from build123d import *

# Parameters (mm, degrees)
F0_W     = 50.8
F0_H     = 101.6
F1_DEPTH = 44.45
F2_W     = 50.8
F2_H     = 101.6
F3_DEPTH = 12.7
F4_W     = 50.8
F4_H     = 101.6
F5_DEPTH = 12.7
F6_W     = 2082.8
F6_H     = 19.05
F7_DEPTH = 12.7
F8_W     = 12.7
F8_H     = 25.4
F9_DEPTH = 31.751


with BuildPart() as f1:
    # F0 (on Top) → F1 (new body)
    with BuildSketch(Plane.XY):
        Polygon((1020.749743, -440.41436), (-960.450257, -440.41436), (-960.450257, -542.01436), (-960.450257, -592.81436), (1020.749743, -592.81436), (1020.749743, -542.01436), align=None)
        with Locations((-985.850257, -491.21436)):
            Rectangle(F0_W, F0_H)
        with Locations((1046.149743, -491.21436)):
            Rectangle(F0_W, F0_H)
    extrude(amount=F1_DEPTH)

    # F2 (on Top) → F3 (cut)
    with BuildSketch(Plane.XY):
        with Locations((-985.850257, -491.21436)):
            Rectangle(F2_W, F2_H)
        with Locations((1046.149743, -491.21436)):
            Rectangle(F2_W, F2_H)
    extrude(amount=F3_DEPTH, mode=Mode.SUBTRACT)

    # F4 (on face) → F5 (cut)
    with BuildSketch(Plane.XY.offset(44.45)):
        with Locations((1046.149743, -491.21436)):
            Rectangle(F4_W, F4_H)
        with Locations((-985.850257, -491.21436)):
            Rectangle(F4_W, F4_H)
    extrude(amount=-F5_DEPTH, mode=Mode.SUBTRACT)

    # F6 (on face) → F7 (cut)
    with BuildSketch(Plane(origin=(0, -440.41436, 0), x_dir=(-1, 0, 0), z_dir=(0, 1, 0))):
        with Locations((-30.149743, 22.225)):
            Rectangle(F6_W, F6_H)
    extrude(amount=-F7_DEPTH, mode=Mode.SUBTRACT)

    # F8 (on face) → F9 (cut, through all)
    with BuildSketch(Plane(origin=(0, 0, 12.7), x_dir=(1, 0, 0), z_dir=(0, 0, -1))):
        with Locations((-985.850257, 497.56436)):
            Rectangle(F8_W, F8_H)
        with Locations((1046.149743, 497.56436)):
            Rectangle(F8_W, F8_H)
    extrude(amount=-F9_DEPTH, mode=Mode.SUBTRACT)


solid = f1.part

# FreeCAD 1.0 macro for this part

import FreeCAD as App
import Part
import Sketcher
Q = App.Units.Quantity

doc = App.newDocument("Part")
params = doc.addObject("Spreadsheet::Sheet", "Params")
for row, (alias, value) in enumerate([
    ("sketch1_width", "2 in"),
    ("sketch1_width2", "78 in"),
    ("sketch1_height", "4 in"),
    ("pad1_length", "1.75 in"),
    ("sketch2_width", "2 in"),
    ("sketch2_height", "4 in"),
    ("pocket1_length", "0.5 in"),
    ("sketch3_width", "2 in"),
    ("sketch3_height", "4 in"),
    ("pocket2_length", "0.5 in"),
    ("sketch4_width", "82 in"),
    ("sketch4_height", "0.75 in"),
    ("pocket3_length", "0.5 in"),
    ("sketch5_height", "1 in"),
    ("sketch5_width", "0.5 in"),
], start=1):
    params.set(f"A{row}", alias)
    params.set(f"B{row}", "=" + value)
    params.setAlias(f"B{row}", alias)

body = doc.addObject("PartDesign::Body", "Body")

sketch1 = doc.addObject("Sketcher::SketchObject", "Sketch")
body.addObject(sketch1)
sketch1.AttachmentSupport = (doc.XY_Plane, [""])
sketch1.MapMode = "FlatFace"
sketch1.addGeometry(Part.LineSegment(App.Vector(-1011, -440, 0), App.Vector(-1011, -542, 0)), False)
sketch1.addGeometry(Part.LineSegment(App.Vector(-1011, -542, 0), App.Vector(-960, -542, 0)), False)
sketch1.addGeometry(Part.LineSegment(App.Vector(-960, -542, 0), App.Vector(-960, -593, 0)), False)
sketch1.addGeometry(Part.LineSegment(App.Vector(-960, -593, 0), App.Vector(1021, -593, 0)), False)
sketch1.addGeometry(Part.LineSegment(App.Vector(1021, -593, 0), App.Vector(1021, -542, 0)), False)
sketch1.addGeometry(Part.LineSegment(App.Vector(1021, -542, 0), App.Vector(1072, -542, 0)), False)
sketch1.addGeometry(Part.LineSegment(App.Vector(1072, -542, 0), App.Vector(1072, -440, 0)), False)
sketch1.addGeometry(Part.LineSegment(App.Vector(1072, -440, 0), App.Vector(-1011, -440, 0)), False)
sketch1.addConstraint(Sketcher.Constraint("Coincident", 0, 2, 1, 1))
sketch1.addConstraint(Sketcher.Constraint("Coincident", 1, 2, 2, 1))
sketch1.addConstraint(Sketcher.Constraint("Coincident", 2, 2, 3, 1))
sketch1.addConstraint(Sketcher.Constraint("Coincident", 3, 2, 4, 1))
sketch1.addConstraint(Sketcher.Constraint("Coincident", 4, 2, 5, 1))
sketch1.addConstraint(Sketcher.Constraint("Coincident", 5, 2, 6, 1))
sketch1.addConstraint(Sketcher.Constraint("Coincident", 6, 2, 7, 1))
sketch1.addConstraint(Sketcher.Constraint("Coincident", 7, 2, 0, 1))
sketch1.addConstraint(Sketcher.Constraint("Vertical", 0))
sketch1.addConstraint(Sketcher.Constraint("Horizontal", 1))
sketch1.addConstraint(Sketcher.Constraint("Vertical", 2))
sketch1.addConstraint(Sketcher.Constraint("Horizontal", 3))
sketch1.addConstraint(Sketcher.Constraint("Vertical", 4))
sketch1.addConstraint(Sketcher.Constraint("Horizontal", 5))
sketch1.addConstraint(Sketcher.Constraint("Vertical", 6))
sketch1.addConstraint(Sketcher.Constraint("Horizontal", 7))
sketch1.addConstraint(Sketcher.Constraint("Horizontal", 1, 2, 4, 2))
sketch1.addConstraint(Sketcher.Constraint("Equal", 1, 5))
sketch1.addConstraint(Sketcher.Constraint("Equal", 5, 2))
sketch1.addConstraint(Sketcher.Constraint("DistanceX", 1, 1, 1, 2, Q("2 in")))
sketch1.addConstraint(Sketcher.Constraint("DistanceX", 3, 1, 3, 2, Q("78 in")))
sketch1.addConstraint(Sketcher.Constraint("DistanceY", 0, 2, 0, 1, Q("4 in")))
sketch1.addConstraint(Sketcher.Constraint("DistanceY", 0, 2, -1, 1, Q("542.01436 mm")))
sketch1.addConstraint(Sketcher.Constraint("DistanceX", 0, 2, -1, 1, Q("1011.250257 mm")))
sketch1.setExpression("Constraints[19]", "Params.sketch1_width")
sketch1.setExpression("Constraints[20]", "Params.sketch1_width2")
sketch1.setExpression("Constraints[21]", "Params.sketch1_height")
pad1 = doc.addObject("PartDesign::Pad", "Pad")
body.addObject(pad1)
pad1.Profile = sketch1
pad1.setExpression("Length", "Params.pad1_length")

sketch2 = doc.addObject("Sketcher::SketchObject", "Sketch001")
body.addObject(sketch2)
sketch2.AttachmentSupport = (doc.XY_Plane, [""])
sketch2.MapMode = "FlatFace"
sketch2.addGeometry(Part.LineSegment(App.Vector(-1011, -440, 0), App.Vector(-1011, -542, 0)), False)
sketch2.addGeometry(Part.LineSegment(App.Vector(-1011, -542, 0), App.Vector(-960, -542, 0)), False)
sketch2.addGeometry(Part.LineSegment(App.Vector(-960, -542, 0), App.Vector(-960, -440, 0)), False)
sketch2.addGeometry(Part.LineSegment(App.Vector(-960, -440, 0), App.Vector(-1011, -440, 0)), False)
sketch2.addGeometry(Part.LineSegment(App.Vector(1021, -440, 0), App.Vector(1021, -542, 0)), False)
sketch2.addGeometry(Part.LineSegment(App.Vector(1021, -542, 0), App.Vector(1072, -542, 0)), False)
sketch2.addGeometry(Part.LineSegment(App.Vector(1072, -542, 0), App.Vector(1072, -440, 0)), False)
sketch2.addGeometry(Part.LineSegment(App.Vector(1072, -440, 0), App.Vector(1021, -440, 0)), False)
sketch2.addConstraint(Sketcher.Constraint("Coincident", 0, 2, 1, 1))
sketch2.addConstraint(Sketcher.Constraint("Coincident", 1, 2, 2, 1))
sketch2.addConstraint(Sketcher.Constraint("Coincident", 2, 2, 3, 1))
sketch2.addConstraint(Sketcher.Constraint("Coincident", 3, 2, 0, 1))
sketch2.addConstraint(Sketcher.Constraint("Coincident", 4, 2, 5, 1))
sketch2.addConstraint(Sketcher.Constraint("Coincident", 5, 2, 6, 1))
sketch2.addConstraint(Sketcher.Constraint("Coincident", 6, 2, 7, 1))
sketch2.addConstraint(Sketcher.Constraint("Coincident", 7, 2, 4, 1))
sketch2.addConstraint(Sketcher.Constraint("Vertical", 0))
sketch2.addConstraint(Sketcher.Constraint("Horizontal", 1))
sketch2.addConstraint(Sketcher.Constraint("Vertical", 2))
sketch2.addConstraint(Sketcher.Constraint("Horizontal", 3))
sketch2.addConstraint(Sketcher.Constraint("Vertical", 4))
sketch2.addConstraint(Sketcher.Constraint("Horizontal", 5))
sketch2.addConstraint(Sketcher.Constraint("Vertical", 6))
sketch2.addConstraint(Sketcher.Constraint("Horizontal", 7))
sketch2.addConstraint(Sketcher.Constraint("Horizontal", 1, 2, 4, 2))
sketch2.addConstraint(Sketcher.Constraint("Horizontal", 3, 2, 6, 2))
sketch2.addConstraint(Sketcher.Constraint("Equal", 3, 5))
sketch2.addConstraint(Sketcher.Constraint("DistanceX", 1, 1, 1, 2, Q("2 in")))
sketch2.addConstraint(Sketcher.Constraint("DistanceY", 0, 2, 0, 1, Q("4 in")))
sketch2.addConstraint(Sketcher.Constraint("DistanceX", 1, 2, 4, 2, Q("78 in")))
sketch2.addConstraint(Sketcher.Constraint("DistanceY", 0, 2, -1, 1, Q("542.01436 mm")))
sketch2.addConstraint(Sketcher.Constraint("DistanceX", 0, 2, -1, 1, Q("1011.250257 mm")))
sketch2.setExpression("Constraints[19]", "Params.sketch2_width")
sketch2.setExpression("Constraints[20]", "Params.sketch2_height")
pocket1 = doc.addObject("PartDesign::Pocket", "Pocket")
body.addObject(pocket1)
pocket1.Profile = sketch2
pocket1.setExpression("Length", "Params.pocket1_length")
pocket1.Reversed = True

sketch3 = doc.addObject("Sketcher::SketchObject", "Sketch002")
body.addObject(sketch3)
sketch3.AttachmentSupport = (doc.XY_Plane, [""])
sketch3.MapMode = "FlatFace"
sketch3.AttachmentOffset = App.Placement(App.Vector(0, 0, 1.75 * 25.4), App.Rotation())
sketch3.addGeometry(Part.LineSegment(App.Vector(1021, -440, 0), App.Vector(1021, -542, 0)), False)
sketch3.addGeometry(Part.LineSegment(App.Vector(1021, -542, 0), App.Vector(1072, -542, 0)), False)
sketch3.addGeometry(Part.LineSegment(App.Vector(1072, -542, 0), App.Vector(1072, -440, 0)), False)
sketch3.addGeometry(Part.LineSegment(App.Vector(1072, -440, 0), App.Vector(1021, -440, 0)), False)
sketch3.addGeometry(Part.LineSegment(App.Vector(-1011, -440, 0), App.Vector(-1011, -542, 0)), False)
sketch3.addGeometry(Part.LineSegment(App.Vector(-1011, -542, 0), App.Vector(-960, -542, 0)), False)
sketch3.addGeometry(Part.LineSegment(App.Vector(-960, -542, 0), App.Vector(-960, -440, 0)), False)
sketch3.addGeometry(Part.LineSegment(App.Vector(-960, -440, 0), App.Vector(-1011, -440, 0)), False)
sketch3.addConstraint(Sketcher.Constraint("Coincident", 0, 2, 1, 1))
sketch3.addConstraint(Sketcher.Constraint("Coincident", 1, 2, 2, 1))
sketch3.addConstraint(Sketcher.Constraint("Coincident", 2, 2, 3, 1))
sketch3.addConstraint(Sketcher.Constraint("Coincident", 3, 2, 0, 1))
sketch3.addConstraint(Sketcher.Constraint("Coincident", 4, 2, 5, 1))
sketch3.addConstraint(Sketcher.Constraint("Coincident", 5, 2, 6, 1))
sketch3.addConstraint(Sketcher.Constraint("Coincident", 6, 2, 7, 1))
sketch3.addConstraint(Sketcher.Constraint("Coincident", 7, 2, 4, 1))
sketch3.addConstraint(Sketcher.Constraint("Vertical", 0))
sketch3.addConstraint(Sketcher.Constraint("Horizontal", 1))
sketch3.addConstraint(Sketcher.Constraint("Vertical", 2))
sketch3.addConstraint(Sketcher.Constraint("Horizontal", 3))
sketch3.addConstraint(Sketcher.Constraint("Vertical", 4))
sketch3.addConstraint(Sketcher.Constraint("Horizontal", 5))
sketch3.addConstraint(Sketcher.Constraint("Vertical", 6))
sketch3.addConstraint(Sketcher.Constraint("Horizontal", 7))
sketch3.addConstraint(Sketcher.Constraint("Horizontal", 1, 2, 4, 2))
sketch3.addConstraint(Sketcher.Constraint("Horizontal", 3, 2, 6, 2))
sketch3.addConstraint(Sketcher.Constraint("Equal", 3, 5))
sketch3.addConstraint(Sketcher.Constraint("DistanceX", 1, 1, 1, 2, Q("2 in")))
sketch3.addConstraint(Sketcher.Constraint("DistanceY", 0, 2, 0, 1, Q("4 in")))
sketch3.addConstraint(Sketcher.Constraint("DistanceX", 4, 2, 0, 2, Q("80 in")))
sketch3.addConstraint(Sketcher.Constraint("DistanceY", 0, 2, -1, 1, Q("542.01436 mm")))
sketch3.addConstraint(Sketcher.Constraint("DistanceX", -1, 1, 0, 2, Q("1020.749743 mm")))
sketch3.setExpression("Constraints[19]", "Params.sketch3_width")
sketch3.setExpression("Constraints[20]", "Params.sketch3_height")
pocket2 = doc.addObject("PartDesign::Pocket", "Pocket001")
body.addObject(pocket2)
pocket2.Profile = sketch3
pocket2.setExpression("Length", "Params.pocket2_length")

sketch4 = doc.addObject("Sketcher::SketchObject", "Sketch003")
body.addObject(sketch4)
sketch4.AttachmentSupport = (doc.XZ_Plane, [""])
sketch4.MapMode = "FlatFace"
sketch4.AttachmentOffset = App.Placement(App.Vector(0, 0, 440.41436), App.Rotation())
sketch4.addGeometry(Part.LineSegment(App.Vector(1072, 32, 0), App.Vector(1072, 13, 0)), False)
sketch4.addGeometry(Part.LineSegment(App.Vector(1072, 13, 0), App.Vector(-1011, 13, 0)), False)
sketch4.addGeometry(Part.LineSegment(App.Vector(-1011, 13, 0), App.Vector(-1011, 32, 0)), False)
sketch4.addGeometry(Part.LineSegment(App.Vector(-1011, 32, 0), App.Vector(1072, 32, 0)), False)
sketch4.addConstraint(Sketcher.Constraint("Coincident", 0, 2, 1, 1))
sketch4.addConstraint(Sketcher.Constraint("Coincident", 1, 2, 2, 1))
sketch4.addConstraint(Sketcher.Constraint("Coincident", 2, 2, 3, 1))
sketch4.addConstraint(Sketcher.Constraint("Coincident", 3, 2, 0, 1))
sketch4.addConstraint(Sketcher.Constraint("Vertical", 0))
sketch4.addConstraint(Sketcher.Constraint("Horizontal", 1))
sketch4.addConstraint(Sketcher.Constraint("Vertical", 2))
sketch4.addConstraint(Sketcher.Constraint("Horizontal", 3))
sketch4.addConstraint(Sketcher.Constraint("DistanceX", 1, 2, 1, 1, Q("82 in")))
sketch4.addConstraint(Sketcher.Constraint("DistanceY", 0, 2, 0, 1, Q("0.75 in")))
sketch4.addConstraint(Sketcher.Constraint("DistanceY", -1, 1, 0, 2, Q("0.5 in")))
sketch4.addConstraint(Sketcher.Constraint("DistanceX", -1, 1, 0, 2, Q("1071.549743 mm")))
sketch4.setExpression("Constraints[8]", "Params.sketch4_width")
sketch4.setExpression("Constraints[9]", "Params.sketch4_height")
pocket3 = doc.addObject("PartDesign::Pocket", "Pocket002")
body.addObject(pocket3)
pocket3.Profile = sketch4
pocket3.setExpression("Length", "Params.pocket3_length")
pocket3.Reversed = True

sketch5 = doc.addObject("Sketcher::SketchObject", "Sketch004")
body.addObject(sketch5)
sketch5.AttachmentSupport = (doc.XY_Plane, [""])
sketch5.MapMode = "FlatFace"
sketch5.AttachmentOffset = App.Placement(App.Vector(0, 0, 0.5 * 25.4), App.Rotation())
sketch5.addGeometry(Part.LineSegment(App.Vector(-992, -510, 0), App.Vector(-992, -485, 0)), False)
sketch5.addGeometry(Part.LineSegment(App.Vector(-992, -485, 0), App.Vector(-980, -485, 0)), False)
sketch5.addGeometry(Part.LineSegment(App.Vector(-980, -485, 0), App.Vector(-980, -510, 0)), False)
sketch5.addGeometry(Part.LineSegment(App.Vector(-980, -510, 0), App.Vector(-992, -510, 0)), False)
sketch5.addGeometry(Part.LineSegment(App.Vector(1040, -510, 0), App.Vector(1040, -485, 0)), False)
sketch5.addGeometry(Part.LineSegment(App.Vector(1040, -485, 0), App.Vector(1052, -485, 0)), False)
sketch5.addGeometry(Part.LineSegment(App.Vector(1052, -485, 0), App.Vector(1052, -510, 0)), False)
sketch5.addGeometry(Part.LineSegment(App.Vector(1052, -510, 0), App.Vector(1040, -510, 0)), False)
sketch5.addConstraint(Sketcher.Constraint("Coincident", 0, 2, 1, 1))
sketch5.addConstraint(Sketcher.Constraint("Coincident", 1, 2, 2, 1))
sketch5.addConstraint(Sketcher.Constraint("Coincident", 2, 2, 3, 1))
sketch5.addConstraint(Sketcher.Constraint("Coincident", 3, 2, 0, 1))
sketch5.addConstraint(Sketcher.Constraint("Coincident", 4, 2, 5, 1))
sketch5.addConstraint(Sketcher.Constraint("Coincident", 5, 2, 6, 1))
sketch5.addConstraint(Sketcher.Constraint("Coincident", 6, 2, 7, 1))
sketch5.addConstraint(Sketcher.Constraint("Coincident", 7, 2, 4, 1))
sketch5.addConstraint(Sketcher.Constraint("Vertical", 0))
sketch5.addConstraint(Sketcher.Constraint("Horizontal", 1))
sketch5.addConstraint(Sketcher.Constraint("Vertical", 2))
sketch5.addConstraint(Sketcher.Constraint("Horizontal", 3))
sketch5.addConstraint(Sketcher.Constraint("Vertical", 4))
sketch5.addConstraint(Sketcher.Constraint("Horizontal", 5))
sketch5.addConstraint(Sketcher.Constraint("Vertical", 6))
sketch5.addConstraint(Sketcher.Constraint("Horizontal", 7))
sketch5.addConstraint(Sketcher.Constraint("Horizontal", 1, 2, 4, 2))
sketch5.addConstraint(Sketcher.Constraint("Horizontal", 3, 2, 6, 2))
sketch5.addConstraint(Sketcher.Constraint("Equal", 3, 5))
sketch5.addConstraint(Sketcher.Constraint("DistanceY", 0, 1, 0, 2, Q("1 in")))
sketch5.addConstraint(Sketcher.Constraint("DistanceX", 1, 1, 1, 2, Q("0.5 in")))
sketch5.addConstraint(Sketcher.Constraint("DistanceX", 0, 2, 4, 2, Q("80 in")))
sketch5.addConstraint(Sketcher.Constraint("DistanceY", 0, 2, -1, 1, Q("484.86436 mm")))
sketch5.addConstraint(Sketcher.Constraint("DistanceX", 0, 2, -1, 1, Q("992.200257 mm")))
sketch5.setExpression("Constraints[19]", "Params.sketch5_height")
sketch5.setExpression("Constraints[20]", "Params.sketch5_width")
pocket4 = doc.addObject("PartDesign::Pocket", "Pocket003")
body.addObject(pocket4)
pocket4.Profile = sketch5
pocket4.Type = "ThroughAll"
pocket4.Reversed = True

doc.recompute()
